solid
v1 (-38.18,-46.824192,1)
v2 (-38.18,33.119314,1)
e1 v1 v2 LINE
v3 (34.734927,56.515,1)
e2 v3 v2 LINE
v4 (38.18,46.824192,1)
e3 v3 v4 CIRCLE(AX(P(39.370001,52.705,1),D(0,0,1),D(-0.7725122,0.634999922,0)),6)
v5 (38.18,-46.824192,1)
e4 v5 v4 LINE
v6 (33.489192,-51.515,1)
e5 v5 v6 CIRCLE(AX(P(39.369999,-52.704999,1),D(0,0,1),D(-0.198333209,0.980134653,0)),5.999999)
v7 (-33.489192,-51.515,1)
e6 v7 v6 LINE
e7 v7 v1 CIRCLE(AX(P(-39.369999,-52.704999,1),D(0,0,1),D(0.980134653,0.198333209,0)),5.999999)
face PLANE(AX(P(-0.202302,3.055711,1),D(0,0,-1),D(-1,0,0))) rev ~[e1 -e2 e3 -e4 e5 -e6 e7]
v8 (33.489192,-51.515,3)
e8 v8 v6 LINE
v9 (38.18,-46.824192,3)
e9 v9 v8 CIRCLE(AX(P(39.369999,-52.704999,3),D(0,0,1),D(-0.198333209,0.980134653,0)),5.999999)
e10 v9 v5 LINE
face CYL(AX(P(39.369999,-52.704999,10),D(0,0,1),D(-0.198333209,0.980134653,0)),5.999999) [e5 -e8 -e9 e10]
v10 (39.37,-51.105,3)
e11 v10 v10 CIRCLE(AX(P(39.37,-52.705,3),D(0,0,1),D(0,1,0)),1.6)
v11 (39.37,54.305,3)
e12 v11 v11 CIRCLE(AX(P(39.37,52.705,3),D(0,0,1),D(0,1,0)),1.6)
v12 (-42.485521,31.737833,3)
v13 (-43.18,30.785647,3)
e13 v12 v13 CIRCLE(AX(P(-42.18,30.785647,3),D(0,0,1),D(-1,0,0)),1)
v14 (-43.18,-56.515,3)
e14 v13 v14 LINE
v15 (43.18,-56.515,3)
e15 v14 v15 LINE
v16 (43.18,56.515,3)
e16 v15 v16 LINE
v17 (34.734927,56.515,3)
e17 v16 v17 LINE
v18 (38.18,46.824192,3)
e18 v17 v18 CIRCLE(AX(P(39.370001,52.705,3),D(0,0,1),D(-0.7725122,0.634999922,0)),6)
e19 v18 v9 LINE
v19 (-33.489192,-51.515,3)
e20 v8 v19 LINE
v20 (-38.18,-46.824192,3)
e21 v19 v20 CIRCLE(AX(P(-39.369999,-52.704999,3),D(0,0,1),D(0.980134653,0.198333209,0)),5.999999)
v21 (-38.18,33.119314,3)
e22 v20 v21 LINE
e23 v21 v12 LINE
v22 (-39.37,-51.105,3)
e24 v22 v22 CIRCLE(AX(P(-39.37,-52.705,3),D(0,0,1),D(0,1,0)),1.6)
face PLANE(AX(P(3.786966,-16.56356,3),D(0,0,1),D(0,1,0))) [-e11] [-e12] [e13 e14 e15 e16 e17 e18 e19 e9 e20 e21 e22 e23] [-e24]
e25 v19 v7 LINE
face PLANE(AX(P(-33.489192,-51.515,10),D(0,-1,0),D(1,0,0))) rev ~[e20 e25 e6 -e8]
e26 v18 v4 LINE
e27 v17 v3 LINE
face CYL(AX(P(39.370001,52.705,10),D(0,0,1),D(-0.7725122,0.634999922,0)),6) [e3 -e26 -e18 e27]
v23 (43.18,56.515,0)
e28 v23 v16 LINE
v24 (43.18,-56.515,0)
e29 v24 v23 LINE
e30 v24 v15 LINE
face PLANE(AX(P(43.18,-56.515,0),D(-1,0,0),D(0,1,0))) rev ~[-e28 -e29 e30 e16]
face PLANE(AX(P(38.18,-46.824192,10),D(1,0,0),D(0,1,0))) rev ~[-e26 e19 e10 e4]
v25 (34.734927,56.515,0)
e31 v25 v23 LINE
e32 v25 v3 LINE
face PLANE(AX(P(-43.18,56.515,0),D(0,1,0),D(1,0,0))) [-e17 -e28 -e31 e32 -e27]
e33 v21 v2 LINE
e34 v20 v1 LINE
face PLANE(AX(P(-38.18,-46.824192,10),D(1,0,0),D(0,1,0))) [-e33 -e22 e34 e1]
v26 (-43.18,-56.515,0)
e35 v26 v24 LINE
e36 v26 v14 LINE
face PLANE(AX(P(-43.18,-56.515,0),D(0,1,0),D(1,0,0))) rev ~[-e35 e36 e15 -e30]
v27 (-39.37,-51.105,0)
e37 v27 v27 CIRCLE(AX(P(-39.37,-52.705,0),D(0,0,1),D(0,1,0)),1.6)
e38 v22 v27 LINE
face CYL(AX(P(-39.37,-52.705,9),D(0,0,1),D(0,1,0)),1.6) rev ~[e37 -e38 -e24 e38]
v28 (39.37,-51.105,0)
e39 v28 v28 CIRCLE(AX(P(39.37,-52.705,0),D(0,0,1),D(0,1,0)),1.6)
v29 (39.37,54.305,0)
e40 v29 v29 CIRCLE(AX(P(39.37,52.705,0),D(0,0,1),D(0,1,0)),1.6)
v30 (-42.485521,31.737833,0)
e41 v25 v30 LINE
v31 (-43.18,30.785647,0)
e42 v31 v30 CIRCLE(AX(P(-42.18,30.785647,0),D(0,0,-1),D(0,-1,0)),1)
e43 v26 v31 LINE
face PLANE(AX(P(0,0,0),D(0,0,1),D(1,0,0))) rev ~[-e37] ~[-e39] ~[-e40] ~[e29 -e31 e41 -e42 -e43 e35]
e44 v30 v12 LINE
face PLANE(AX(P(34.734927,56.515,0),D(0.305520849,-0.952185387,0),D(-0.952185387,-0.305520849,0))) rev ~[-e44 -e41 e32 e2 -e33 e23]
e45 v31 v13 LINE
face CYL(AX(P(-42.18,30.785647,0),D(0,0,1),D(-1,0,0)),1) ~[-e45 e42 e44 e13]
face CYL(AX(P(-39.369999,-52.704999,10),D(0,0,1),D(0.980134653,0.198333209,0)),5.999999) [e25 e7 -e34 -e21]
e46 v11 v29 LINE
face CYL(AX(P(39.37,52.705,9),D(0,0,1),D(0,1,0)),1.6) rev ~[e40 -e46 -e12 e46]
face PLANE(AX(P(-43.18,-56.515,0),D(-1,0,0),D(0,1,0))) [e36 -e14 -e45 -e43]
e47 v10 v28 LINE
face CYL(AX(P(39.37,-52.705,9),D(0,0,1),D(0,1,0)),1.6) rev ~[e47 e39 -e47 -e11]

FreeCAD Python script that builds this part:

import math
import FreeCAD as App
import Part
import Sketcher
from FreeCAD import Vector


def edges_at(feature, points):
    """Names of the edges that pass closest to the given points."""
    edges = feature.Shape.Edges
    near = lambda p: min(range(len(edges)), key=lambda i: edges[i].distToShape(Part.Vertex(*p))[0])
    return sorted({f"Edge{near(p) + 1}" for p in points})

doc = App.newDocument("Part")
body = doc.addObject("PartDesign::Body", "Body")

# Sketch on XY plane
sketch1 = body.newObject("Sketcher::SketchObject", "Sketch")
sketch1.AttachmentSupport = (doc.getObject("XY_Plane"), [""])
sketch1.MapMode = "FlatFace"
sketch1.addGeometry([
    Part.LineSegment(Vector(-43.18, 56.515, 0), Vector(-43.18, -56.515, 0)),
    Part.LineSegment(Vector(-43.18, -56.515, 0), Vector(43.18, -56.515, 0)),
    Part.LineSegment(Vector(43.18, -56.515, 0), Vector(43.18, 56.515, 0)),
    Part.LineSegment(Vector(43.18, 56.515, 0), Vector(-43.18, 56.515, 0)),
], False)
sketch1.addConstraint([
    Sketcher.Constraint("Coincident", 0, 2, 1, 1),
    Sketcher.Constraint("Coincident", 1, 2, 2, 1),
    Sketcher.Constraint("Coincident", 2, 2, 3, 1),
    Sketcher.Constraint("Coincident", 3, 2, 0, 1),
    Sketcher.Constraint("Vertical", 0),
    Sketcher.Constraint("Horizontal", 1),
    Sketcher.Constraint("Vertical", 2),
    Sketcher.Constraint("Horizontal", 3),
    Sketcher.Constraint("Symmetric", 0, 2, 2, 2, -1, 1),
    Sketcher.Constraint("DistanceX", 1, 1, 1, 2, 86.36),
    Sketcher.Constraint("DistanceY", 0, 2, 0, 1, 113.03),
])
pad1 = body.newObject("PartDesign::Pad", "Pad")
pad1.Profile = sketch1
pad1.Length = 10

# Sketch on XY plane
sketch2 = body.newObject("Sketcher::SketchObject", "Sketch001")
sketch2.AttachmentSupport = (doc.getObject("XY_Plane"), [""])
sketch2.MapMode = "FlatFace"
sketch2.AttachmentOffset = App.Placement(Vector(0, 0, 10), App.Rotation())
sketch2.addGeometry([
    Part.Circle(Vector(-39.37, -52.705, 0), Vector(0, 0, 1), 1.6),
    Part.Circle(Vector(39.37, -52.705, 0), Vector(0, 0, 1), 1.6),
    Part.Circle(Vector(39.37, 52.705, 0), Vector(0, 0, 1), 1.6),
], False)
sketch2.addConstraint([
    Sketcher.Constraint("Equal", 0, 1),
    Sketcher.Constraint("Equal", 1, 2),
    Sketcher.Constraint("Symmetric", 0, 3, 2, 3, -1, 1),
    Sketcher.Constraint("Symmetric", 0, 3, 1, 3, -2),
    Sketcher.Constraint("Diameter", 0, 3.2),
    Sketcher.Constraint("DistanceX", 0, 3, -1, 1, 39.37),
    Sketcher.Constraint("DistanceY", 1, 3, 2, 3, 105.41),
])
pocket1 = body.newObject("PartDesign::Pocket", "Pocket")
pocket1.Profile = sketch2
pocket1.Length = 1

# Sketch on XY plane
sketch3 = body.newObject("Sketcher::SketchObject", "Sketch002")
sketch3.AttachmentSupport = (doc.getObject("XY_Plane"), [""])
sketch3.MapMode = "FlatFace"
sketch3.AttachmentOffset = App.Placement(Vector(0, 0, 10), App.Rotation())
sketch3.addGeometry([
    Part.LineSegment(Vector(34.734927, 56.515, 0), Vector(-38.18, 56.515, 0)),  # 0
    Part.LineSegment(Vector(-38.18, 56.515, 0), Vector(-38.18, -46.824192, 0)),  # 1
    Part.ArcOfCircle(Part.Circle(Vector(-39.369999, -52.704999, 0), Vector(0, 0, 1), 5.999999), math.radians(11.439507), math.radians(78.560493)),  # 2
    Part.LineSegment(Vector(-33.489192, -51.515, 0), Vector(33.489192, -51.515, 0)),  # 3
    Part.ArcOfCircle(Part.Circle(Vector(39.369999, -52.704999, 0), Vector(0, 0, 1), 5.999999), math.radians(101.439507), math.radians(168.560493)),  # 4
    Part.LineSegment(Vector(38.18, -46.824192, 0), Vector(38.18, 46.824192, 0)),  # 5
    Part.ArcOfCircle(Part.Circle(Vector(39.370001, 52.705, 0), Vector(0, 0, 1), 6), math.radians(140.580021), math.radians(258.560481)),  # 6
], False)
sketch3.addConstraint([
    Sketcher.Constraint("Coincident", 0, 2, 1, 1),
    Sketcher.Constraint("Coincident", 1, 2, 2, 2),
    Sketcher.Constraint("Coincident", 2, 1, 3, 1),
    Sketcher.Constraint("Coincident", 3, 2, 4, 2),
    Sketcher.Constraint("Coincident", 4, 1, 5, 1),
    Sketcher.Constraint("Coincident", 5, 2, 6, 2),
    Sketcher.Constraint("Coincident", 6, 1, 0, 1),
    Sketcher.Constraint("Horizontal", 0),
    Sketcher.Constraint("Vertical", 1),
    Sketcher.Constraint("Horizontal", 3),
    Sketcher.Constraint("Vertical", 5),
    Sketcher.Constraint("Equal", 2, 4),
    Sketcher.Constraint("Equal", 4, 6),
    Sketcher.Constraint("Symmetric", 2, 3, 6, 3, -1, 1),
    Sketcher.Constraint("Symmetric", 2, 3, 4, 3, -2),
    Sketcher.Constraint("Horizontal", 1, 2, 4, 1),
    Sketcher.Constraint("Radius", 2, 5.999999),
    Sketcher.Constraint("DistanceX", 2, 3, -1, 1, 39.369999),
    Sketcher.Constraint("DistanceX", 0, 2, -1, 1, 38.18),
    Sketcher.Constraint("DistanceY", 4, 3, 6, 3, 105.409999),
    Sketcher.Constraint("DistanceY", 6, 3, 0, 2, 3.81),
    Sketcher.Constraint("DistanceY", 2, 3, 2, 1, 1.189999),
])
pocket2 = body.newObject("PartDesign::Pocket", "Pocket001")
pocket2.Profile = sketch3
pocket2.Length = 9

# Sketch on XY plane
sketch4 = body.newObject("Sketcher::SketchObject", "Sketch003")
sketch4.AttachmentSupport = (doc.getObject("XY_Plane"), [""])
sketch4.MapMode = "FlatFace"
sketch4.addGeometry([
    Part.LineSegment(Vector(34.734927, 56.515, 0), Vector(-43.18, 31.515, 0)),  # 0
    Part.LineSegment(Vector(-43.18, 31.515, 0), Vector(-75.693622, 36.778853, 0)),  # 1
    Part.LineSegment(Vector(-75.693622, 36.778853, 0), Vector(-62.654191, 136.900963, 0)),  # 2
    Part.LineSegment(Vector(-62.654191, 136.900963, 0), Vector(71.529642, 145.781613, 0)),  # 3
    Part.LineSegment(Vector(71.529642, 145.781613, 0), Vector(34.734927, 56.515, 0)),  # 4
], False)
sketch4.addConstraint([
    Sketcher.Constraint("Coincident", 0, 2, 1, 1),
    Sketcher.Constraint("Coincident", 1, 2, 2, 1),
    Sketcher.Constraint("Coincident", 2, 2, 3, 1),
    Sketcher.Constraint("Coincident", 3, 2, 4, 1),
    Sketcher.Constraint("Coincident", 4, 2, 0, 1),
    Sketcher.Constraint("DistanceY", 0, 2, 4, 2, 25.0),
    Sketcher.Constraint("DistanceX", 0, 2, -1, 1, 43.18),
    Sketcher.Constraint("DistanceY", -1, 1, 0, 2, 31.515),
    Sketcher.Constraint("Distance", 4, 96.552469),
    Sketcher.Constraint("DistanceX", 2, 2, -1, 1, 62.654191),
    Sketcher.Constraint("DistanceX", -1, 1, 3, 2, 71.529642),
    Sketcher.Constraint("DistanceX", 1, 2, 2, 2, 13.039431),
    Sketcher.Constraint("DistanceY", 1, 2, 2, 2, 100.12211),
    Sketcher.Constraint("DistanceY", 2, 2, 3, 2, 8.88065),
    Sketcher.Constraint("DistanceX", 1, 2, 4, 2, 110.428549),
])
pocket3 = body.newObject("PartDesign::Pocket", "Pocket002")
pocket3.Profile = sketch4
pocket3.Type = "ThroughAll"
pocket3.Reversed = True
doc.recompute()

fillet = body.newObject("PartDesign::Fillet", "Fillet")
fillet.Base = (pocket3, edges_at(pocket3, [(-43.18, 31.515, 5)]))
fillet.Radius = 1

# Sketch on XY plane
sketch5 = body.newObject("Sketcher::SketchObject", "Sketch004")
sketch5.AttachmentSupport = (doc.getObject("XY_Plane"), [""])
sketch5.MapMode = "FlatFace"
sketch5.AttachmentOffset = App.Placement(Vector(0, 0, 9), App.Rotation())
sketch5.addGeometry(Part.Circle(Vector(39.37, 52.705, 0), Vector(0, 0, 1), 1.6), False)
sketch5.addConstraint([
    Sketcher.Constraint("Diameter", 0, 3.2),
    Sketcher.Constraint("DistanceX", -1, 1, 0, 3, 39.37),
    Sketcher.Constraint("DistanceY", -1, 1, 0, 3, 52.705),
])
pocket4 = body.newObject("PartDesign::Pocket", "Pocket003")
pocket4.Profile = sketch5
pocket4.Type = "ThroughAll"

# Sketch on XY plane
sketch6 = body.newObject("Sketcher::SketchObject", "Sketch005")
sketch6.AttachmentSupport = (doc.getObject("XY_Plane"), [""])
sketch6.MapMode = "FlatFace"
sketch6.AttachmentOffset = App.Placement(Vector(0, 0, 9), App.Rotation())
sketch6.addGeometry(Part.Circle(Vector(39.37, -52.705, 0), Vector(0, 0, 1), 1.6), False)
sketch6.addConstraint([
    Sketcher.Constraint("Diameter", 0, 3.2),
    Sketcher.Constraint("DistanceX", -1, 1, 0, 3, 39.37),
    Sketcher.Constraint("DistanceY", 0, 3, -1, 1, 52.705),
])
pocket5 = body.newObject("PartDesign::Pocket", "Pocket004")
pocket5.Profile = sketch6
pocket5.Type = "ThroughAll"

# Sketch on XY plane
sketch7 = body.newObject("Sketcher::SketchObject", "Sketch006")
sketch7.AttachmentSupport = (doc.getObject("XY_Plane"), [""])
sketch7.MapMode = "FlatFace"
sketch7.AttachmentOffset = App.Placement(Vector(0, 0, 9), App.Rotation())
sketch7.addGeometry(Part.Circle(Vector(-39.37, -52.705, 0), Vector(0, 0, 1), 1.6), False)
sketch7.addConstraint([
    Sketcher.Constraint("Diameter", 0, 3.2),
    Sketcher.Constraint("DistanceX", 0, 3, -1, 1, 39.37),
    Sketcher.Constraint("DistanceY", 0, 3, -1, 1, 52.705),
])
pocket6 = body.newObject("PartDesign::Pocket", "Pocket005")
pocket6.Profile = sketch7
pocket6.Type = "ThroughAll"

# Sketch on XY plane
sketch8 = body.newObject("Sketcher::SketchObject", "Sketch007")
sketch8.AttachmentSupport = (doc.getObject("XY_Plane"), [""])
sketch8.MapMode = "FlatFace"
sketch8.AttachmentOffset = App.Placement(Vector(0, 0, 10), App.Rotation())
sketch8.addGeometry([
    Part.LineSegment(Vector(-38.18, 33.119314, 0), Vector(-42.485521, 31.737833, 0)),  # 0
    Part.ArcOfCircle(Part.Circle(Vector(-42.18, 30.785648, 0), Vector(0, 0, 1), 1), math.radians(107.789501), math.radians(180.000048)),  # 1
    Part.LineSegment(Vector(-43.18, 30.785647, 0), Vector(-43.18, -56.515, 0)),  # 2
    Part.LineSegment(Vector(-43.18, -56.515, 0), Vector(43.18, -56.515, 0)),  # 3
    Part.LineSegment(Vector(43.18, -56.515, 0), Vector(43.18, 56.515, 0)),  # 4
    Part.LineSegment(Vector(43.18, 56.515, 0), Vector(34.734927, 56.515, 0)),  # 5
    Part.ArcOfCircle(Part.Circle(Vector(39.370001, 52.705, 0), Vector(0, 0, 1), 6), math.radians(140.580021), math.radians(258.560481)),  # 6
    Part.LineSegment(Vector(38.18, 46.824192, 0), Vector(38.18, -46.824192, 0)),  # 7
    Part.ArcOfCircle(Part.Circle(Vector(39.369999, -52.704999, 0), Vector(0, 0, 1), 5.999999), math.radians(101.439507), math.radians(168.560493)),  # 8
    Part.LineSegment(Vector(33.489192, -51.515, 0), Vector(-33.489192, -51.515, 0)),  # 9
    Part.ArcOfCircle(Part.Circle(Vector(-39.369999, -52.704999, 0), Vector(0, 0, 1), 5.999999), math.radians(11.439507), math.radians(78.560493)),  # 10
    Part.LineSegment(Vector(-38.18, -46.824192, 0), Vector(-38.18, 33.119314, 0)),  # 11
    Part.Circle(Vector(39.37, -52.705, 0), Vector(0, 0, 1), 1.6),  # 12
    Part.Circle(Vector(39.37, 52.705, 0), Vector(0, 0, 1), 1.6),  # 13
    Part.Circle(Vector(-39.37, -52.705, 0), Vector(0, 0, 1), 1.6),  # 14
], False)
sketch8.addConstraint([
    Sketcher.Constraint("Tangent", 0, 2, 1, 1),
    Sketcher.Constraint("Tangent", 1, 2, 2, 1),
    Sketcher.Constraint("Coincident", 2, 2, 3, 1),
    Sketcher.Constraint("Coincident", 3, 2, 4, 1),
    Sketcher.Constraint("Coincident", 4, 2, 5, 1),
    Sketcher.Constraint("Coincident", 5, 2, 6, 1),
    Sketcher.Constraint("Coincident", 6, 2, 7, 1),
    Sketcher.Constraint("Coincident", 7, 2, 8, 1),
    Sketcher.Constraint("Coincident", 8, 2, 9, 1),
    Sketcher.Constraint("Coincident", 9, 2, 10, 1),
    Sketcher.Constraint("Coincident", 10, 2, 11, 1),
    Sketcher.Constraint("Coincident", 11, 2, 0, 1),
    Sketcher.Constraint("Vertical", 2),
    Sketcher.Constraint("Horizontal", 3),
    Sketcher.Constraint("Vertical", 4),
    Sketcher.Constraint("Horizontal", 5),
    Sketcher.Constraint("Vertical", 7),
    Sketcher.Constraint("Horizontal", 9),
    Sketcher.Constraint("Vertical", 11),
    Sketcher.Constraint("Coincident", 12, 3, 8, 3),
    Sketcher.Constraint("Coincident", 13, 3, 6, 3),
    Sketcher.Constraint("Coincident", 14, 3, 10, 3),
    Sketcher.Constraint("Equal", 6, 8),
    Sketcher.Constraint("Equal", 8, 10),
    Sketcher.Constraint("Equal", 12, 13),
    Sketcher.Constraint("Equal", 13, 14),
    Sketcher.Constraint("Symmetric", 6, 3, 10, 3, -1, 1),
    Sketcher.Constraint("Symmetric", 2, 2, 4, 2, -1, 1),
    Sketcher.Constraint("Symmetric", 8, 3, 10, 3, -2),
    Sketcher.Constraint("Horizontal", 7, 2, 10, 2),
    Sketcher.Constraint("Radius", 1, 1.0),
    Sketcher.Constraint("Radius", 6, 6.0),
    Sketcher.Constraint("Diameter", 12, 3.2),
    Sketcher.Constraint("DistanceX", 6, 2, 4, 2, 5.0),
    Sketcher.Constraint("DistanceY", 3, 2, 8, 2, 5.0),
    Sketcher.Constraint("DistanceX", 3, 1, 3, 2, 86.36),
    Sketcher.Constraint("DistanceY", 4, 1, 4, 2, 113.03),
    Sketcher.Constraint("DistanceX", -1, 1, 6, 3, 39.370001),
    Sketcher.Constraint("DistanceY", 8, 3, 6, 3, 105.409999),
    Sketcher.Constraint("DistanceY", 2, 2, 2, 1, 87.300647),
    Sketcher.Constraint("DistanceY", 11, 1, 11, 2, 79.943506),
])
pocket7 = body.newObject("PartDesign::Pocket", "Pocket006")
pocket7.Profile = sketch8
pocket7.Length = 7

doc.recompute()
